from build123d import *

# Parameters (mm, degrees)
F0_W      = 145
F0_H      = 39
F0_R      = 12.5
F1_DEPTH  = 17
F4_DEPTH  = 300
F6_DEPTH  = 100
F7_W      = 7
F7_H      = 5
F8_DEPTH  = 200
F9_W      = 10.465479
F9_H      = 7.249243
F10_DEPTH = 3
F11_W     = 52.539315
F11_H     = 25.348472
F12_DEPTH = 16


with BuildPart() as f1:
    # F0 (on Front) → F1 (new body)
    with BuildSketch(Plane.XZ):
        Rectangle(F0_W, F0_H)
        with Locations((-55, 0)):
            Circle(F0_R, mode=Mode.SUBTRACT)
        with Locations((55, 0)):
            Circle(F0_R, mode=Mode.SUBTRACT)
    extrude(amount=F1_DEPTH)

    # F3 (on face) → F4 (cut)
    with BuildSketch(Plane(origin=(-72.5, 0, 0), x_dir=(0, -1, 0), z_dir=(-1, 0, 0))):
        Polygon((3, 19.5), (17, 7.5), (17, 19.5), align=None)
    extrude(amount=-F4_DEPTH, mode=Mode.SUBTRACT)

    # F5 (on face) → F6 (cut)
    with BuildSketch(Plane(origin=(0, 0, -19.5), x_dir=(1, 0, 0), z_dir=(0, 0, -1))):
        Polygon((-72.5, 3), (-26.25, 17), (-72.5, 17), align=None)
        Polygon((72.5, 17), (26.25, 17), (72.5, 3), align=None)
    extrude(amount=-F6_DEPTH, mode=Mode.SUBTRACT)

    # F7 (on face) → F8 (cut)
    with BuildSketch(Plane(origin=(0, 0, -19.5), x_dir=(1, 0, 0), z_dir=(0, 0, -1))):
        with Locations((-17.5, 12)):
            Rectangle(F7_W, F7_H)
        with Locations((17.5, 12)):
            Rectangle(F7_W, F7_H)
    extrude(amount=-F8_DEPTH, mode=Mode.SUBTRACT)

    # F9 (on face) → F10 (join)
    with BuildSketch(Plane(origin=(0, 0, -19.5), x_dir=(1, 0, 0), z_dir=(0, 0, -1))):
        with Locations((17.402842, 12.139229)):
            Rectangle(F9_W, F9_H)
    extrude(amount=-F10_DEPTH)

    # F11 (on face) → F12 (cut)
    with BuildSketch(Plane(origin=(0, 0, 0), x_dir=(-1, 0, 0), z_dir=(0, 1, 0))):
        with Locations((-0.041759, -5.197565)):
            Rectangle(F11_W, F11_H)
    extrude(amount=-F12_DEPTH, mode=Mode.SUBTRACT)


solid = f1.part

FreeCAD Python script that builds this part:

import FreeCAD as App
import Part
import Sketcher

V = App.Vector

doc = App.newDocument("Part")
body = doc.addObject("PartDesign::Body", "Body")

# Sketch on XZ plane
sketch1 = doc.addObject("Sketcher::SketchObject", "Sketch")
body.addObject(sketch1)
sketch1.AttachmentSupport = (doc.XZ_Plane, [""])
sketch1.MapMode = "FlatFace"
sketch1.addGeometry([
    Part.LineSegment(V(-72.5, 19.5, 0), V(-72.5, -19.5, 0)),  # 0
    Part.LineSegment(V(-72.5, -19.5, 0), V(72.5, -19.5, 0)),  # 1
    Part.LineSegment(V(72.5, -19.5, 0), V(72.5, 19.5, 0)),  # 2
    Part.LineSegment(V(72.5, 19.5, 0), V(-72.5, 19.5, 0)),  # 3
    Part.Circle(V(-55, 0, 0), V(0, 0, 1), 12.5),  # 4
    Part.Circle(V(55, 0, 0), V(0, 0, 1), 12.5),  # 5
], False)
sketch1.addConstraint([
    Sketcher.Constraint("Coincident", 0, 2, 1, 1),
    Sketcher.Constraint("Coincident", 1, 2, 2, 1),
    Sketcher.Constraint("Coincident", 2, 2, 3, 1),
    Sketcher.Constraint("Coincident", 3, 2, 0, 1),
    Sketcher.Constraint("Vertical", 0),
    Sketcher.Constraint("Horizontal", 1),
    Sketcher.Constraint("Vertical", 2),
    Sketcher.Constraint("Horizontal", 3),
    Sketcher.Constraint("Equal", 4, 5),
    Sketcher.Constraint("Symmetric", 4, 3, 5, 3, -1, 1),
    Sketcher.Constraint("Symmetric", 0, 2, 2, 2, -1, 1),
    Sketcher.Constraint("PointOnObject", 4, 3, -1),
    Sketcher.Constraint("Diameter", 4, 25.0),
    Sketcher.Constraint("DistanceX", 1, 1, 1, 2, 145.0),
    Sketcher.Constraint("DistanceY", 0, 2, 0, 1, 39.0),
    Sketcher.Constraint("DistanceX", 4, 3, -1, 1, 55.0),
])
pad1 = doc.addObject("PartDesign::Pad", "Pad")
body.addObject(pad1)
pad1.Profile = sketch1
pad1.Length = 17

# Sketch on YZ plane
sketch2 = doc.addObject("Sketcher::SketchObject", "Sketch001")
body.addObject(sketch2)
sketch2.AttachmentSupport = (doc.YZ_Plane, [""])
sketch2.MapMode = "FlatFace"
sketch2.AttachmentOffset = App.Placement(V(0, 0, -72.5), App.Rotation())
sketch2.addGeometry([
    Part.LineSegment(V(-3, 19.5, 0), V(-17, 7.5, 0)),
    Part.LineSegment(V(-17, 7.5, 0), V(-17, 19.5, 0)),
    Part.LineSegment(V(-17, 19.5, 0), V(-3, 19.5, 0)),
], False)
sketch2.addConstraint([
    Sketcher.Constraint("Coincident", 0, 2, 1, 1),
    Sketcher.Constraint("Coincident", 1, 2, 2, 1),
    Sketcher.Constraint("Coincident", 2, 2, 0, 1),
    Sketcher.Constraint("Vertical", 1),
    Sketcher.Constraint("Horizontal", 2),
    Sketcher.Constraint("DistanceX", 2, 1, 2, 2, 14.0),
    Sketcher.Constraint("DistanceY", 1, 1, 1, 2, 12.0),
    Sketcher.Constraint("DistanceX", 0, 2, -1, 1, 17.0),
    Sketcher.Constraint("DistanceY", -1, 1, 0, 2, 7.5),
])
pocket1 = doc.addObject("PartDesign::Pocket", "Pocket")
body.addObject(pocket1)
pocket1.Profile = sketch2
pocket1.Length = 300
pocket1.Reversed = True

# Sketch on XY plane
sketch3 = doc.addObject("Sketcher::SketchObject", "Sketch002")
body.addObject(sketch3)
sketch3.AttachmentSupport = (doc.XY_Plane, [""])
sketch3.MapMode = "FlatFace"
sketch3.AttachmentOffset = App.Placement(V(0, 0, -19.5), App.Rotation())
sketch3.addGeometry([
    Part.LineSegment(V(-72.5, -3, 0), V(-26.25, -17, 0)),  # 0
    Part.LineSegment(V(-26.25, -17, 0), V(-72.5, -17, 0)),  # 1
    Part.LineSegment(V(-72.5, -17, 0), V(-72.5, -3, 0)),  # 2
    Part.LineSegment(V(72.5, -17, 0), V(26.25, -17, 0)),  # 3
    Part.LineSegment(V(26.25, -17, 0), V(72.5, -3, 0)),  # 4
    Part.LineSegment(V(72.5, -3, 0), V(72.5, -17, 0)),  # 5
], False)
sketch3.addConstraint([
    Sketcher.Constraint("Coincident", 0, 2, 1, 1),
    Sketcher.Constraint("Coincident", 1, 2, 2, 1),
    Sketcher.Constraint("Coincident", 2, 2, 0, 1),
    Sketcher.Constraint("Coincident", 3, 2, 4, 1),
    Sketcher.Constraint("Coincident", 4, 2, 5, 1),
    Sketcher.Constraint("Coincident", 5, 2, 3, 1),
    Sketcher.Constraint("Horizontal", 1),
    Sketcher.Constraint("Vertical", 2),
    Sketcher.Constraint("Horizontal", 3),
    Sketcher.Constraint("Vertical", 5),
    Sketcher.Constraint("Symmetric", 0, 2, 3, 2, -2),
    Sketcher.Constraint("Symmetric", 2, 2, 4, 2, -2),
    Sketcher.Constraint("DistanceY", 2, 1, 2, 2, 14.0),
    Sketcher.Constraint("DistanceY", 0, 2, -1, 1, 17.0),
    Sketcher.Constraint("DistanceX", 2, 2, 4, 2, 145.0),
    Sketcher.Constraint("DistanceX", 1, 2, 1, 1, 46.25),
])
pocket2 = doc.addObject("PartDesign::Pocket", "Pocket001")
body.addObject(pocket2)
pocket2.Profile = sketch3
pocket2.Length = 100
pocket2.Reversed = True

# Sketch on XY plane
sketch4 = doc.addObject("Sketcher::SketchObject", "Sketch003")
body.addObject(sketch4)
sketch4.AttachmentSupport = (doc.XY_Plane, [""])
sketch4.MapMode = "FlatFace"
sketch4.AttachmentOffset = App.Placement(V(0, 0, -19.5), App.Rotation())
sketch4.addGeometry([
    Part.LineSegment(V(-21, -14.5, 0), V(-21, -9.5, 0)),  # 0
    Part.LineSegment(V(-21, -9.5, 0), V(-14, -9.5, 0)),  # 1
    Part.LineSegment(V(-14, -9.5, 0), V(-14, -14.5, 0)),  # 2
    Part.LineSegment(V(-14, -14.5, 0), V(-21, -14.5, 0)),  # 3
    Part.LineSegment(V(14, -14.5, 0), V(14, -9.5, 0)),  # 4
    Part.LineSegment(V(14, -9.5, 0), V(21, -9.5, 0)),  # 5
    Part.LineSegment(V(21, -9.5, 0), V(21, -14.5, 0)),  # 6
    Part.LineSegment(V(21, -14.5, 0), V(14, -14.5, 0)),  # 7
], False)
sketch4.addConstraint([
    Sketcher.Constraint("Coincident", 0, 2, 1, 1),
    Sketcher.Constraint("Coincident", 1, 2, 2, 1),
    Sketcher.Constraint("Coincident", 2, 2, 3, 1),
    Sketcher.Constraint("Coincident", 3, 2, 0, 1),
    Sketcher.Constraint("Coincident", 4, 2, 5, 1),
    Sketcher.Constraint("Coincident", 5, 2, 6, 1),
    Sketcher.Constraint("Coincident", 6, 2, 7, 1),
    Sketcher.Constraint("Coincident", 7, 2, 4, 1),
    Sketcher.Constraint("Vertical", 0),
    Sketcher.Constraint("Horizontal", 1),
    Sketcher.Constraint("Vertical", 2),
    Sketcher.Constraint("Horizontal", 3),
    Sketcher.Constraint("Vertical", 4),
    Sketcher.Constraint("Horizontal", 5),
    Sketcher.Constraint("Vertical", 6),
    Sketcher.Constraint("Horizontal", 7),
    Sketcher.Constraint("Symmetric", 1, 2, 4, 2, -2),
    Sketcher.Constraint("Symmetric", 3, 2, 6, 2, -2),
    Sketcher.Constraint("DistanceX", 1, 1, 1, 2, 7.0),
    Sketcher.Constraint("DistanceY", 0, 1, 0, 2, 5.0),
    Sketcher.Constraint("DistanceX", 0, 2, -1, 1, 21.0),
    Sketcher.Constraint("DistanceY", 0, 2, -1, 1, 9.5),
])
pocket3 = doc.addObject("PartDesign::Pocket", "Pocket002")
body.addObject(pocket3)
pocket3.Profile = sketch4
pocket3.Length = 200
pocket3.Reversed = True

# Sketch on XY plane
sketch5 = doc.addObject("Sketcher::SketchObject", "Sketch004")
body.addObject(sketch5)
sketch5.AttachmentSupport = (doc.XY_Plane, [""])
sketch5.MapMode = "FlatFace"
sketch5.AttachmentOffset = App.Placement(V(0, 0, -19.5), App.Rotation())
sketch5.addGeometry([
    Part.LineSegment(V(12.170103, -15.763851, 0), V(12.170103, -8.514608, 0)),
    Part.LineSegment(V(12.170103, -8.514608, 0), V(22.635582, -8.514608, 0)),
    Part.LineSegment(V(22.635582, -8.514608, 0), V(22.635582, -15.763851, 0)),
    Part.LineSegment(V(22.635582, -15.763851, 0), V(12.170103, -15.763851, 0)),
], False)
sketch5.addConstraint([
    Sketcher.Constraint("Coincident", 0, 2, 1, 1),
    Sketcher.Constraint("Coincident", 1, 2, 2, 1),
    Sketcher.Constraint("Coincident", 2, 2, 3, 1),
    Sketcher.Constraint("Coincident", 3, 2, 0, 1),
    Sketcher.Constraint("Vertical", 0),
    Sketcher.Constraint("Horizontal", 1),
    Sketcher.Constraint("Vertical", 2),
    Sketcher.Constraint("Horizontal", 3),
    Sketcher.Constraint("DistanceX", 1, 1, 1, 2, 10.465479),
    Sketcher.Constraint("DistanceY", 0, 1, 0, 2, 7.249243),
    Sketcher.Constraint("DistanceX", -1, 1, 1, 2, 22.635582),
    Sketcher.Constraint("DistanceY", 2, 2, -1, 1, 15.763851),
])
pad2 = doc.addObject("PartDesign::Pad", "Pad001")
body.addObject(pad2)
pad2.Profile = sketch5
pad2.Length = 3

# Sketch on XZ plane
sketch6 = doc.addObject("Sketcher::SketchObject", "Sketch005")
body.addObject(sketch6)
sketch6.AttachmentSupport = (doc.XZ_Plane, [""])
sketch6.MapMode = "FlatFace"
sketch6.addGeometry([
    Part.LineSegment(V(26.311416, 7.476671, 0), V(26.311416, -17.871801, 0)),
    Part.LineSegment(V(26.311416, -17.871801, 0), V(-26.227898, -17.871801, 0)),
    Part.LineSegment(V(-26.227898, -17.871801, 0), V(-26.227898, 7.476671, 0)),
    Part.LineSegment(V(-26.227898, 7.476671, 0), V(26.311416, 7.476671, 0)),
], False)
sketch6.addConstraint([
    Sketcher.Constraint("Coincident", 0, 2, 1, 1),
    Sketcher.Constraint("Coincident", 1, 2, 2, 1),
    Sketcher.Constraint("Coincident", 2, 2, 3, 1),
    Sketcher.Constraint("Coincident", 3, 2, 0, 1),
    Sketcher.Constraint("Vertical", 0),
    Sketcher.Constraint("Horizontal", 1),
    Sketcher.Constraint("Vertical", 2),
    Sketcher.Constraint("Horizontal", 3),
    Sketcher.Constraint("DistanceY", 0, 2, -1, 1, 17.871801),
    Sketcher.Constraint("DistanceX", 1, 2, -1, 1, 26.227898),
    Sketcher.Constraint("DistanceX", 1, 2, 1, 1, 52.539315),
    Sketcher.Constraint("DistanceY", 0, 2, 0, 1, 25.348472),
])
pocket4 = doc.addObject("PartDesign::Pocket", "Pocket003")
body.addObject(pocket4)
pocket4.Profile = sketch6
pocket4.Length = 16
pocket4.Reversed = True

doc.recompute()
